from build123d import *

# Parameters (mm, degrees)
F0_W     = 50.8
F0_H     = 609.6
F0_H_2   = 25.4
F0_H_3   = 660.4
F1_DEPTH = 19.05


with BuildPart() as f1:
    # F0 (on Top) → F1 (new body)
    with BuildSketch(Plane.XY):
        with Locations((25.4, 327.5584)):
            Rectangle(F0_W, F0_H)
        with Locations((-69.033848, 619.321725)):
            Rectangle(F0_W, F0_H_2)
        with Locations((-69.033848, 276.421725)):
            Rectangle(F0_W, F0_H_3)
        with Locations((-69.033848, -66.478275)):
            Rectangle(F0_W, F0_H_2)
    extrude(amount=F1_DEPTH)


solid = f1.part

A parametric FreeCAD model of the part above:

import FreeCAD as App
import Part
import Sketcher

V = App.Vector
Q = App.Units.Quantity


def add_polygon(sketch, points):
    """Adds a closed chain of lines whose ends are joined by coincident constraints."""
    first, n = sketch.GeometryCount, len(points)
    for a, b in zip(points, points[1:] + points[:1]):
        sketch.addGeometry(Part.LineSegment(App.Vector(*a, 0), App.Vector(*b, 0)), False)
    for i in range(n):
        sketch.addConstraint(Sketcher.Constraint("Coincident", first + i, 2, first + (i + 1) % n, 1))

doc = App.newDocument("Part")
params = doc.addObject("Spreadsheet::Sheet", "Params")
for row, (alias, value) in enumerate([
    ("sketch1_width", "2 in"),
    ("sketch1_height", "24 in"),
    ("sketch1_height2", "28 in"),
    ("pad1_length", "0.75 in"),
], start=1):
    params.set(f"A{row}", alias)
    params.set(f"B{row}", "=" + value)
    params.setAlias(f"B{row}", alias)

body = doc.addObject("PartDesign::Body", "Body")
body.AllowCompound = True

# Sketch on XY plane
sketch1 = body.newObject("Sketcher::SketchObject", "Sketch")
sketch1.AttachmentSupport = (doc.getObject("XY_Plane"), [""])
sketch1.MapMode = "FlatFace"
add_polygon(sketch1, [(0, 632), (0, 23), (51, 23), (51, 632)])  # lines 0-3
add_polygon(sketch1, [(-94, 632), (-94, -79), (-44, -79), (-44, 632)])  # lines 4-7
sketch1.addConstraint([
    Sketcher.Constraint("Vertical", 0),
    Sketcher.Constraint("Horizontal", 1),
    Sketcher.Constraint("Vertical", 2),
    Sketcher.Constraint("Horizontal", 3),
    Sketcher.Constraint("Vertical", 4),
    Sketcher.Constraint("Horizontal", 5),
    Sketcher.Constraint("Vertical", 6),
    Sketcher.Constraint("Horizontal", 7),
    Sketcher.Constraint("PointOnObject", 0, 2, -2),
    Sketcher.Constraint("Equal", 3, 5),
    Sketcher.Constraint("DistanceX", 1, 1, 1, 2, Q("2 in")),
    Sketcher.Constraint("DistanceY", 0, 2, 0, 1, Q("24 in")),
    Sketcher.Constraint("DistanceY", 4, 2, 4, 1, Q("28 in")),
    Sketcher.Constraint("DistanceY", -1, 1, 0, 2, Q("0.896 in")),
    Sketcher.Constraint("DistanceX", 4, 2, 1, 2, Q("145.233848 mm")),
    Sketcher.Constraint("DistanceY", 4, 2, -1, 1, Q("79.178275 mm")),
])
sketch1.setExpression("Constraints[18]", "Params.sketch1_width")
sketch1.setExpression("Constraints[19]", "Params.sketch1_height")
sketch1.setExpression("Constraints[20]", "Params.sketch1_height2")
pad1 = body.newObject("PartDesign::Pad", "Pad")
pad1.Profile = sketch1
pad1.setExpression("Length", "Params.pad1_length")

doc.recompute()
